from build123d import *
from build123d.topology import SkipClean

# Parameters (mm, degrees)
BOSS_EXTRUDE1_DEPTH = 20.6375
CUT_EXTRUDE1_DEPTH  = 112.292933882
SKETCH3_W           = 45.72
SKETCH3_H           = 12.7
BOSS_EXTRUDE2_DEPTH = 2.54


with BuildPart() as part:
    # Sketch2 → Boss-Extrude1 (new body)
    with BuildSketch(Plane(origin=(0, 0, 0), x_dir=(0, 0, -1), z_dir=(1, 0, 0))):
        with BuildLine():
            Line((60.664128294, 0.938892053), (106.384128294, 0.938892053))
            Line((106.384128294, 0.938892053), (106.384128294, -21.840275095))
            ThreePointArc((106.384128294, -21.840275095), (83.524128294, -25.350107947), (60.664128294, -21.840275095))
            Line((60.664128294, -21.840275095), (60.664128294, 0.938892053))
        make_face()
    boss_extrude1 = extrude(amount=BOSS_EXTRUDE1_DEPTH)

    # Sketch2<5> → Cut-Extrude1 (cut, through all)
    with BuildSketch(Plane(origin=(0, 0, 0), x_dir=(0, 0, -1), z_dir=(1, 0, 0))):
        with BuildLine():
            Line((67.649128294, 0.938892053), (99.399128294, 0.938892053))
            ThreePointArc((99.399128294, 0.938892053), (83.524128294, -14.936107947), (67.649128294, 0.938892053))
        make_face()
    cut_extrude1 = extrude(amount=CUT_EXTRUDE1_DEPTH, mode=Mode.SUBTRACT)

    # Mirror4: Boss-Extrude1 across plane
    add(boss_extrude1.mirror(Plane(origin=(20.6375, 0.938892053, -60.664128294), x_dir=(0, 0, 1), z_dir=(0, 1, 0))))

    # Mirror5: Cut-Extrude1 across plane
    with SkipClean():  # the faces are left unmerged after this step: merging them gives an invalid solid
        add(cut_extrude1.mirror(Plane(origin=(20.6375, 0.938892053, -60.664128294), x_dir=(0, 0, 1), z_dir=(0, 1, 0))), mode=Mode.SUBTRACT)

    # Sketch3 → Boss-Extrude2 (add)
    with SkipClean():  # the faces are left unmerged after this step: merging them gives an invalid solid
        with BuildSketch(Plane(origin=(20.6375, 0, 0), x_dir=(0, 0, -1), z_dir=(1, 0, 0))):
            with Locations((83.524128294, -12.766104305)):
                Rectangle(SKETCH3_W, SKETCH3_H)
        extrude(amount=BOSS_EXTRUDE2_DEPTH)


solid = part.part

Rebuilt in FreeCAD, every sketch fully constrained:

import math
import FreeCAD as App
import Part
import Sketcher
Q = App.Units.Quantity

doc = App.newDocument("Part")
body = doc.addObject("PartDesign::Body", "Body")

# Sketch on YZ plane
sketch1 = doc.addObject("Sketcher::SketchObject", "Sketch")
body.addObject(sketch1)
sketch1.AttachmentSupport = (doc.YZ_Plane, [""])
sketch1.MapMode = "FlatFace"
sketch1.addGeometry(Part.LineSegment(App.Vector(1, -106, 0), App.Vector(1, -61, 0)), False)
sketch1.addGeometry(Part.LineSegment(App.Vector(1, -61, 0), App.Vector(-22, -61, 0)), False)
sketch1.addGeometry(Part.ArcOfCircle(Part.Circle(App.Vector(51, -84, 0), App.Vector(0, 0, 1), 76), math.radians(163), math.radians(197)), False)
sketch1.addGeometry(Part.LineSegment(App.Vector(-22, -106, 0), App.Vector(1, -106, 0)), False)
sketch1.addConstraint(Sketcher.Constraint("Coincident", 0, 2, 1, 1))
sketch1.addConstraint(Sketcher.Constraint("Coincident", 1, 2, 2, 1))
sketch1.addConstraint(Sketcher.Constraint("Coincident", 2, 2, 3, 1))
sketch1.addConstraint(Sketcher.Constraint("Coincident", 3, 2, 0, 1))
sketch1.addConstraint(Sketcher.Constraint("Vertical", 0))
sketch1.addConstraint(Sketcher.Constraint("Horizontal", 1))
sketch1.addConstraint(Sketcher.Constraint("Horizontal", 3))
sketch1.addConstraint(Sketcher.Constraint("Vertical", 1, 2, 2, 2))
sketch1.addConstraint(Sketcher.Constraint("Radius", 2, Q("3 in")))
sketch1.addConstraint(Sketcher.Constraint("DistanceY", 0, 1, 0, 2, Q("1.8 in")))
sketch1.addConstraint(Sketcher.Constraint("DistanceX", 0, 2, 2, 3, Q("1.965 in")))
sketch1.addConstraint(Sketcher.Constraint("DistanceY", 2, 3, -1, 1, 83.524128))
sketch1.addConstraint(Sketcher.Constraint("DistanceX", -1, 1, 2, 3, 50.849892))
pad1 = doc.addObject("PartDesign::Pad", "Pad")
body.addObject(pad1)
pad1.Profile = sketch1
pad1.Length = Q("0.8125 in")

# Sketch on YZ plane
sketch2 = doc.addObject("Sketcher::SketchObject", "Sketch001")
body.addObject(sketch2)
sketch2.AttachmentSupport = (doc.YZ_Plane, [""])
sketch2.MapMode = "FlatFace"
sketch2.addGeometry(Part.LineSegment(App.Vector(1, -99, 0), App.Vector(1, -68, 0)), False)
sketch2.addGeometry(Part.ArcOfCircle(Part.Circle(App.Vector(1, -84, 0), App.Vector(0, 0, 1), 16), math.radians(90), math.radians(270)), False)
sketch2.addConstraint(Sketcher.Constraint("Coincident", 0, 1, 1, 2))
sketch2.addConstraint(Sketcher.Constraint("Coincident", 1, 1, 0, 2))
sketch2.addConstraint(Sketcher.Constraint("Vertical", 0))
sketch2.addConstraint(Sketcher.Constraint("Vertical", 1, 3, 0, 1))
sketch2.addConstraint(Sketcher.Constraint("Radius", 1, Q("0.625 in")))
sketch2.addConstraint(Sketcher.Constraint("DistanceY", 1, 3, -1, 1, 83.524128))
sketch2.addConstraint(Sketcher.Constraint("DistanceX", -1, 1, 1, 3, 0.938892))
pocket1 = doc.addObject("PartDesign::Pocket", "Pocket")
body.addObject(pocket1)
pocket1.Profile = sketch2
pocket1.Type = "ThroughAll"
pocket1.Reversed = True
doc.recompute()

datumplane = doc.addObject("PartDesign::Plane", "DatumPlane")
body.addObject(datumplane)
datumplane.AttachmentSupport = (doc.XZ_Plane, [""])
datumplane.MapMode = "FlatFace"
datumplane.AttachmentOffset = App.Placement(App.Vector(0, 0, -0.938892), App.Rotation())
mirrored = doc.addObject("PartDesign::Mirrored", "Mirrored")
body.addObject(mirrored)
mirrored.Originals = [pad1]
mirrored.MirrorPlane = (datumplane, [""])
body.Tip = mirrored
doc.recompute()

datumplane2 = doc.addObject("PartDesign::Plane", "DatumPlane001")
body.addObject(datumplane2)
datumplane2.AttachmentSupport = (doc.XZ_Plane, [""])
datumplane2.MapMode = "FlatFace"
datumplane2.AttachmentOffset = App.Placement(App.Vector(0, 0, -0.938892), App.Rotation())
mirrored2 = doc.addObject("PartDesign::Mirrored", "Mirrored001")
body.addObject(mirrored2)
mirrored2.Originals = [pocket1]
mirrored2.MirrorPlane = (datumplane2, [""])
body.Tip = mirrored2

# Sketch on YZ plane
sketch3 = doc.addObject("Sketcher::SketchObject", "Sketch002")
body.addObject(sketch3)
sketch3.AttachmentSupport = (doc.YZ_Plane, [""])
sketch3.MapMode = "FlatFace"
sketch3.AttachmentOffset = App.Placement(App.Vector(0, 0, 0.8125 * 25.4), App.Rotation())
sketch3.addGeometry(Part.LineSegment(App.Vector(-6, -61, 0), App.Vector(-19, -61, 0)), False)
sketch3.addGeometry(Part.LineSegment(App.Vector(-19, -61, 0), App.Vector(-19, -106, 0)), False)
sketch3.addGeometry(Part.LineSegment(App.Vector(-19, -106, 0), App.Vector(-6, -106, 0)), False)
sketch3.addGeometry(Part.LineSegment(App.Vector(-6, -106, 0), App.Vector(-6, -61, 0)), False)
sketch3.addConstraint(Sketcher.Constraint("Coincident", 0, 2, 1, 1))
sketch3.addConstraint(Sketcher.Constraint("Coincident", 1, 2, 2, 1))
sketch3.addConstraint(Sketcher.Constraint("Coincident", 2, 2, 3, 1))
sketch3.addConstraint(Sketcher.Constraint("Coincident", 3, 2, 0, 1))
sketch3.addConstraint(Sketcher.Constraint("Horizontal", 0))
sketch3.addConstraint(Sketcher.Constraint("Vertical", 1))
sketch3.addConstraint(Sketcher.Constraint("Horizontal", 2))
sketch3.addConstraint(Sketcher.Constraint("Vertical", 3))
sketch3.addConstraint(Sketcher.Constraint("DistanceX", 0, 2, 0, 1, Q("0.5 in")))
sketch3.addConstraint(Sketcher.Constraint("DistanceY", 1, 2, 1, 1, Q("1.8 in")))
sketch3.addConstraint(Sketcher.Constraint("DistanceY", 0, 2, -1, 1, 60.664128))
sketch3.addConstraint(Sketcher.Constraint("DistanceX", 0, 2, -1, 1, 19.116104))
pad2 = doc.addObject("PartDesign::Pad", "Pad001")
body.addObject(pad2)
pad2.Profile = sketch3
pad2.Length = Q("0.1 in")

doc.recompute()
